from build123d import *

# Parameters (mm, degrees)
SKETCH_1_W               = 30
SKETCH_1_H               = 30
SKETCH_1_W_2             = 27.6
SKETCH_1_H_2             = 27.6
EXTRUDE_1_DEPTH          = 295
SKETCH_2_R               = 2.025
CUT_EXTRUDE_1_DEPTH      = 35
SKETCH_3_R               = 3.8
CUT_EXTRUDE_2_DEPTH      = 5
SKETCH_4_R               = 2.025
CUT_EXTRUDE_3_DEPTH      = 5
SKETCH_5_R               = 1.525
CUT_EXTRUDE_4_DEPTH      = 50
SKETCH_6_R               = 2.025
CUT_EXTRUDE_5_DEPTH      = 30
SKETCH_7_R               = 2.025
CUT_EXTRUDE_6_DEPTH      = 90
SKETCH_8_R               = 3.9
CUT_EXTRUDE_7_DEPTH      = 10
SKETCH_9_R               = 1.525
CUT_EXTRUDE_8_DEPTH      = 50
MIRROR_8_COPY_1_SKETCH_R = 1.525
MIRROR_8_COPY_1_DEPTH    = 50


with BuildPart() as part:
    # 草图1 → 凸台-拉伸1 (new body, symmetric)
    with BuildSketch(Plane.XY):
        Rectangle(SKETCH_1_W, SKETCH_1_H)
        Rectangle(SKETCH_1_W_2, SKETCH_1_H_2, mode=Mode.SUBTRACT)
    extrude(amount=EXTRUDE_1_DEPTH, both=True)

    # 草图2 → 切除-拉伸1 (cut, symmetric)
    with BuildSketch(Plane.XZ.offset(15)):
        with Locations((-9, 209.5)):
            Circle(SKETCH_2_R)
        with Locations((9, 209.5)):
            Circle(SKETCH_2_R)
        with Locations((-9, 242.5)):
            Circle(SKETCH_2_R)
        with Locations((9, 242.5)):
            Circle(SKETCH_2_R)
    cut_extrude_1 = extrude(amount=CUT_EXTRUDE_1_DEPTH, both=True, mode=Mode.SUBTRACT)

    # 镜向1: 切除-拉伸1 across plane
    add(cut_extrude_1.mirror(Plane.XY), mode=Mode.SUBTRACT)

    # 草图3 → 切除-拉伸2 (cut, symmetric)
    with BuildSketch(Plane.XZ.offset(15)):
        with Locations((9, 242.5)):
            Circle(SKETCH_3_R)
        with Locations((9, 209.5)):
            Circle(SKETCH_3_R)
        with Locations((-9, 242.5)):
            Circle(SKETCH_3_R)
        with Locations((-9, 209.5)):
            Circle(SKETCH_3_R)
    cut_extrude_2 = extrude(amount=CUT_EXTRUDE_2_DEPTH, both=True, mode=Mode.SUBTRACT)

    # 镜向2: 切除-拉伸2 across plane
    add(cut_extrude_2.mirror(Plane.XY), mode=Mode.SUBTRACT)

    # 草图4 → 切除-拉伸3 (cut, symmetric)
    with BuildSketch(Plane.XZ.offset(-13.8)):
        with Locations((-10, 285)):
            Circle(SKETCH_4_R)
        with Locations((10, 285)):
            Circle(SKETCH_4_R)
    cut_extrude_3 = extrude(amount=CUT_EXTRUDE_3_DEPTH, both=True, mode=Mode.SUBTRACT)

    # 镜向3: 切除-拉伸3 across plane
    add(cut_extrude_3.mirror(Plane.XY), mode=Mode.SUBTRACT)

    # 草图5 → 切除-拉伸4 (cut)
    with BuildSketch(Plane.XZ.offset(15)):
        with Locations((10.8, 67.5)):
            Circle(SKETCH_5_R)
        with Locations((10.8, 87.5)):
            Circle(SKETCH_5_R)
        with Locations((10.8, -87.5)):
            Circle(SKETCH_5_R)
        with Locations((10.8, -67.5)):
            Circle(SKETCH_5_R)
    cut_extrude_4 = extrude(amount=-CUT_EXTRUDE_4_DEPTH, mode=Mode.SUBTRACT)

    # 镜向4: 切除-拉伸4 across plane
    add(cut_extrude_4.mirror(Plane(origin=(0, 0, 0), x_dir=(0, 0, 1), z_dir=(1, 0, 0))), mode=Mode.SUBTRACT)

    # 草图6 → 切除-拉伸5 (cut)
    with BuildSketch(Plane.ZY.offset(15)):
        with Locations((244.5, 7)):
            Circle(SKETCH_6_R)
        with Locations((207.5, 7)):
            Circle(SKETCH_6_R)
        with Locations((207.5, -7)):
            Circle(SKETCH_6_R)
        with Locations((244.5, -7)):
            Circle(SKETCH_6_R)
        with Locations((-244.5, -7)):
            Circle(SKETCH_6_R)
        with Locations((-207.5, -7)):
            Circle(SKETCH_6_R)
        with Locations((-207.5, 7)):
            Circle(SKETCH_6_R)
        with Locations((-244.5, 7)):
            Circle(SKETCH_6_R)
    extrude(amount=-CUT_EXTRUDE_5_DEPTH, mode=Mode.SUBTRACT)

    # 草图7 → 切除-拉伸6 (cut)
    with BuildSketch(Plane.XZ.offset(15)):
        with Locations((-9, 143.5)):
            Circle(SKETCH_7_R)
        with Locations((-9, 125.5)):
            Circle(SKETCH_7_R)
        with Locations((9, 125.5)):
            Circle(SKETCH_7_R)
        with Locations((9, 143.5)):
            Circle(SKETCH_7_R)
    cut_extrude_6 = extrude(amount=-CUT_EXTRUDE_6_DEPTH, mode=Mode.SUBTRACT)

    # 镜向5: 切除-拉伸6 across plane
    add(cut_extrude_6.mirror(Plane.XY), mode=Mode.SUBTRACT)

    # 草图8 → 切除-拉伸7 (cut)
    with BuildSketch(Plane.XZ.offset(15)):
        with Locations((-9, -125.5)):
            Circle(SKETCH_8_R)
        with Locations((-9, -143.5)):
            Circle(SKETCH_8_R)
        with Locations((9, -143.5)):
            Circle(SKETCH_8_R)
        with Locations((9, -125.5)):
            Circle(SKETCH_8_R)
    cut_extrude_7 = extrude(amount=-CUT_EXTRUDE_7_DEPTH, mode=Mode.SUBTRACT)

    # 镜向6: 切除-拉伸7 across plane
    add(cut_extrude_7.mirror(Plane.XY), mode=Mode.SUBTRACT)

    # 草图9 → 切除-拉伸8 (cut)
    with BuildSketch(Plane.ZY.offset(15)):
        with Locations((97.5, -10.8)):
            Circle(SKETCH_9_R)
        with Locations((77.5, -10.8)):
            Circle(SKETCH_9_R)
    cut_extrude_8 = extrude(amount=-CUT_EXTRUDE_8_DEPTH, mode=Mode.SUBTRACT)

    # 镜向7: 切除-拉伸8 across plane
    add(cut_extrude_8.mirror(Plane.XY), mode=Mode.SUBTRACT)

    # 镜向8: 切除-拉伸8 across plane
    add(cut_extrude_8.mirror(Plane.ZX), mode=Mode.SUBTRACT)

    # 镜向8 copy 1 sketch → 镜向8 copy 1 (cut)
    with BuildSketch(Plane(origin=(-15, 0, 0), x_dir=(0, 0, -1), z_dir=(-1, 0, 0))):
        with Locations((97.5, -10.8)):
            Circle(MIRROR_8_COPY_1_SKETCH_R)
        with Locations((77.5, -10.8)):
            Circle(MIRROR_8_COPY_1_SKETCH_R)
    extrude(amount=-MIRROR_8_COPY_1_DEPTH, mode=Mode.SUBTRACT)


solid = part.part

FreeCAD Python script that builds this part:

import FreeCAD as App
import Part
import Sketcher

V = App.Vector
Q = App.Units.Quantity


def add_polygon(sketch, points):
    """Adds a closed chain of lines whose ends are joined by coincident constraints."""
    first, n = sketch.GeometryCount, len(points)
    for a, b in zip(points, points[1:] + points[:1]):
        sketch.addGeometry(Part.LineSegment(App.Vector(*a, 0), App.Vector(*b, 0)), False)
    for i in range(n):
        sketch.addConstraint(Sketcher.Constraint("Coincident", first + i, 2, first + (i + 1) % n, 1))

doc = App.newDocument("Part")
params = doc.addObject("Spreadsheet::Sheet", "Params")
for row, (alias, value) in enumerate([
    ("sketch1_width", "30 mm"),
    ("sketch1_width2", "27.6 mm"),
    ("pad1_length", "590 mm"),
    ("sketch2_diameter", "4.05 mm"),
    ("pocket1_length", "70 mm"),
    ("sketch3_diameter", "7.6 mm"),
    ("pocket2_length", "10 mm"),
    ("sketch4_diameter", "4.05 mm"),
    ("pocket3_length", "10 mm"),
    ("sketch5_diameter", "3.05 mm"),
    ("pocket4_length", "50 mm"),
    ("sketch6_diameter", "4.05 mm"),
    ("pocket5_length", "30 mm"),
    ("sketch7_diameter", "4.05 mm"),
    ("pocket6_length", "90 mm"),
    ("sketch8_diameter", "7.8 mm"),
    ("pocket7_length", "10 mm"),
    ("sketch9_diameter", "3.05 mm"),
    ("pocket8_length", "50 mm"),
    ("sketch10_diameter", "3.05 mm"),
    ("pocket9_length", "50 mm"),
], start=1):
    params.set(f"A{row}", alias)
    params.set(f"B{row}", "=" + value)
    params.setAlias(f"B{row}", alias)

body = doc.addObject("PartDesign::Body", "Body")

# Sketch on XY plane
sketch1 = body.newObject("Sketcher::SketchObject", "Sketch")
sketch1.AttachmentSupport = (doc.getObject("XY_Plane"), [""])
sketch1.MapMode = "FlatFace"
add_polygon(sketch1, [(-15, 15), (-15, -15), (15, -15), (15, 15)])  # lines 0-3
add_polygon(sketch1, [(13.8, -13.8), (-13.8, -13.8), (-13.8, 13.8), (13.8, 13.8)])  # lines 4-7
sketch1.addConstraint(Sketcher.Constraint("Vertical", 0))
sketch1.addConstraint(Sketcher.Constraint("Horizontal", 1))
sketch1.addConstraint(Sketcher.Constraint("Vertical", 2))
sketch1.addConstraint(Sketcher.Constraint("Horizontal", 3))
sketch1.addConstraint(Sketcher.Constraint("Horizontal", 4))
sketch1.addConstraint(Sketcher.Constraint("Vertical", 5))
sketch1.addConstraint(Sketcher.Constraint("Horizontal", 6))
sketch1.addConstraint(Sketcher.Constraint("Vertical", 7))
sketch1.addConstraint(Sketcher.Constraint("Symmetric", 0, 2, 2, 2, -1, 1))
sketch1.addConstraint(Sketcher.Constraint("Symmetric", 4, 2, 6, 2, -1, 1))
sketch1.addConstraint(Sketcher.Constraint("Equal", 3, 0))
sketch1.addConstraint(Sketcher.Constraint("Equal", 6, 5))
sketch1.addConstraint(Sketcher.Constraint("DistanceX", 1, 1, 1, 2, Q("30 mm")))
sketch1.addConstraint(Sketcher.Constraint("DistanceX", 4, 2, 4, 1, Q("27.6 mm")))
sketch1.setExpression("Constraints[20]", "Params.sketch1_width")
sketch1.setExpression("Constraints[21]", "Params.sketch1_width2")
pad1 = body.newObject("PartDesign::Pad", "Pad")
pad1.Profile = sketch1
pad1.setExpression("Length", "Params.pad1_length")
pad1.Midplane = True

# Sketch on XZ plane
sketch2 = body.newObject("Sketcher::SketchObject", "Sketch001")
sketch2.AttachmentSupport = (doc.getObject("XZ_Plane"), [""])
sketch2.MapMode = "FlatFace"
sketch2.AttachmentOffset = App.Placement(V(0, 0, 15), App.Rotation())
sketch2.addGeometry(Part.Circle(V(-9, 209.5, 0), V(0, 0, 1), 2.025), False)
sketch2.addGeometry(Part.Circle(V(9, 209.5, 0), V(0, 0, 1), 2.025), False)
sketch2.addGeometry(Part.Circle(V(-9, 242.5, 0), V(0, 0, 1), 2.025), False)
sketch2.addGeometry(Part.Circle(V(9, 242.5, 0), V(0, 0, 1), 2.025), False)
sketch2.addConstraint(Sketcher.Constraint("Equal", 0, 1))
sketch2.addConstraint(Sketcher.Constraint("Equal", 1, 2))
sketch2.addConstraint(Sketcher.Constraint("Equal", 2, 3))
sketch2.addConstraint(Sketcher.Constraint("Symmetric", 0, 3, 1, 3, -2))
sketch2.addConstraint(Sketcher.Constraint("Symmetric", 2, 3, 3, 3, -2))
sketch2.addConstraint(Sketcher.Constraint("Vertical", 0, 3, 2, 3))
sketch2.addConstraint(Sketcher.Constraint("Diameter", 0, Q("4.05 mm")))
sketch2.addConstraint(Sketcher.Constraint("DistanceX", 0, 3, -1, 1, Q("9 mm")))
sketch2.addConstraint(Sketcher.Constraint("DistanceY", 0, 3, 2, 3, Q("33 mm")))
sketch2.addConstraint(Sketcher.Constraint("DistanceY", -1, 1, 0, 3, Q("209.5 mm")))
sketch2.setExpression("Constraints[6]", "Params.sketch2_diameter")
pocket1 = body.newObject("PartDesign::Pocket", "Pocket")
pocket1.Profile = sketch2
pocket1.setExpression("Length", "Params.pocket1_length")
pocket1.Midplane = True
doc.recompute()

mirrored = body.newObject("PartDesign::Mirrored", "Mirrored")
mirrored.Originals = [pocket1]
mirrored.MirrorPlane = (doc.getObject("XY_Plane"), [""])
body.Tip = mirrored

# Sketch on XZ plane
sketch3 = body.newObject("Sketcher::SketchObject", "Sketch002")
sketch3.AttachmentSupport = (doc.getObject("XZ_Plane"), [""])
sketch3.MapMode = "FlatFace"
sketch3.AttachmentOffset = App.Placement(V(0, 0, 15), App.Rotation())
sketch3.addGeometry(Part.Circle(V(9, 242.5, 0), V(0, 0, 1), 3.8), False)
sketch3.addGeometry(Part.Circle(V(9, 209.5, 0), V(0, 0, 1), 3.8), False)
sketch3.addGeometry(Part.Circle(V(-9, 242.5, 0), V(0, 0, 1), 3.8), False)
sketch3.addGeometry(Part.Circle(V(-9, 209.5, 0), V(0, 0, 1), 3.8), False)
sketch3.addConstraint(Sketcher.Constraint("Equal", 0, 1))
sketch3.addConstraint(Sketcher.Constraint("Equal", 1, 2))
sketch3.addConstraint(Sketcher.Constraint("Equal", 2, 3))
sketch3.addConstraint(Sketcher.Constraint("Symmetric", 0, 3, 2, 3, -2))
sketch3.addConstraint(Sketcher.Constraint("Symmetric", 1, 3, 3, 3, -2))
sketch3.addConstraint(Sketcher.Constraint("Vertical", 0, 3, 1, 3))
sketch3.addConstraint(Sketcher.Constraint("Diameter", 0, Q("7.6 mm")))
sketch3.addConstraint(Sketcher.Constraint("DistanceX", -1, 1, 0, 3, Q("9 mm")))
sketch3.addConstraint(Sketcher.Constraint("DistanceY", 1, 3, 0, 3, Q("33 mm")))
sketch3.addConstraint(Sketcher.Constraint("DistanceY", -1, 1, 0, 3, Q("242.5 mm")))
sketch3.setExpression("Constraints[6]", "Params.sketch3_diameter")
pocket2 = body.newObject("PartDesign::Pocket", "Pocket001")
pocket2.Profile = sketch3
pocket2.setExpression("Length", "Params.pocket2_length")
pocket2.Midplane = True
doc.recompute()

mirrored2 = body.newObject("PartDesign::Mirrored", "Mirrored001")
mirrored2.Originals = [pocket2]
mirrored2.MirrorPlane = (doc.getObject("XY_Plane"), [""])
body.Tip = mirrored2

# Sketch on XZ plane
sketch4 = body.newObject("Sketcher::SketchObject", "Sketch003")
sketch4.AttachmentSupport = (doc.getObject("XZ_Plane"), [""])
sketch4.MapMode = "FlatFace"
sketch4.AttachmentOffset = App.Placement(V(0, 0, -13.8), App.Rotation())
sketch4.addGeometry(Part.Circle(V(-10, 285, 0), V(0, 0, 1), 2.025), False)
sketch4.addGeometry(Part.Circle(V(10, 285, 0), V(0, 0, 1), 2.025), False)
sketch4.addConstraint(Sketcher.Constraint("Equal", 0, 1))
sketch4.addConstraint(Sketcher.Constraint("Symmetric", 0, 3, 1, 3, -2))
sketch4.addConstraint(Sketcher.Constraint("Diameter", 0, Q("4.05 mm")))
sketch4.addConstraint(Sketcher.Constraint("DistanceX", 0, 3, -1, 1, Q("10 mm")))
sketch4.addConstraint(Sketcher.Constraint("DistanceY", -1, 1, 0, 3, Q("285 mm")))
sketch4.setExpression("Constraints[2]", "Params.sketch4_diameter")
pocket3 = body.newObject("PartDesign::Pocket", "Pocket002")
pocket3.Profile = sketch4
pocket3.setExpression("Length", "Params.pocket3_length")
pocket3.Midplane = True
doc.recompute()

mirrored3 = body.newObject("PartDesign::Mirrored", "Mirrored002")
mirrored3.Originals = [pocket3]
mirrored3.MirrorPlane = (doc.getObject("XY_Plane"), [""])
body.Tip = mirrored3

# Sketch on XZ plane
sketch5 = body.newObject("Sketcher::SketchObject", "Sketch004")
sketch5.AttachmentSupport = (doc.getObject("XZ_Plane"), [""])
sketch5.MapMode = "FlatFace"
sketch5.AttachmentOffset = App.Placement(V(0, 0, 15), App.Rotation())
sketch5.addGeometry(Part.Circle(V(10.8, 67.5, 0), V(0, 0, 1), 1.525), False)
sketch5.addGeometry(Part.Circle(V(10.8, 87.5, 0), V(0, 0, 1), 1.525), False)
sketch5.addGeometry(Part.Circle(V(10.8, -87.5, 0), V(0, 0, 1), 1.525), False)
sketch5.addGeometry(Part.Circle(V(10.8, -67.5, 0), V(0, 0, 1), 1.525), False)
sketch5.addConstraint(Sketcher.Constraint("Equal", 0, 1))
sketch5.addConstraint(Sketcher.Constraint("Equal", 1, 2))
sketch5.addConstraint(Sketcher.Constraint("Equal", 2, 3))
sketch5.addConstraint(Sketcher.Constraint("Symmetric", 1, 3, 2, 3, -1))
sketch5.addConstraint(Sketcher.Constraint("Symmetric", 0, 3, 3, 3, -1))
sketch5.addConstraint(Sketcher.Constraint("Vertical", 0, 3, 1, 3))
sketch5.addConstraint(Sketcher.Constraint("Diameter", 0, Q("3.05 mm")))
sketch5.addConstraint(Sketcher.Constraint("DistanceY", 0, 3, 1, 3, Q("20 mm")))
sketch5.addConstraint(Sketcher.Constraint("DistanceY", 2, 3, 0, 3, Q("155 mm")))
sketch5.addConstraint(Sketcher.Constraint("DistanceX", -1, 1, 0, 3, Q("10.8 mm")))
sketch5.setExpression("Constraints[6]", "Params.sketch5_diameter")
pocket4 = body.newObject("PartDesign::Pocket", "Pocket003")
pocket4.Profile = sketch5
pocket4.setExpression("Length", "Params.pocket4_length")
doc.recompute()

mirrored4 = body.newObject("PartDesign::Mirrored", "Mirrored003")
mirrored4.Originals = [pocket4]
mirrored4.MirrorPlane = (doc.getObject("YZ_Plane"), [""])
body.Tip = mirrored4

# Sketch on YZ plane
sketch6 = body.newObject("Sketcher::SketchObject", "Sketch005")
sketch6.AttachmentSupport = (doc.getObject("YZ_Plane"), [""])
sketch6.MapMode = "FlatFace"
sketch6.AttachmentOffset = App.Placement(V(0, 0, -15), App.Rotation())
sketch6.addGeometry(Part.Circle(V(7, 244.5, 0), V(0, 0, 1), 2.025), False)
sketch6.addGeometry(Part.Circle(V(7, 207.5, 0), V(0, 0, 1), 2.025), False)
sketch6.addGeometry(Part.Circle(V(-7, 207.5, 0), V(0, 0, 1), 2.025), False)
sketch6.addGeometry(Part.Circle(V(-7, 244.5, 0), V(0, 0, 1), 2.025), False)
sketch6.addGeometry(Part.Circle(V(-7, -244.5, 0), V(0, 0, 1), 2.025), False)
sketch6.addGeometry(Part.Circle(V(-7, -207.5, 0), V(0, 0, 1), 2.025), False)
sketch6.addGeometry(Part.Circle(V(7, -207.5, 0), V(0, 0, 1), 2.025), False)
sketch6.addGeometry(Part.Circle(V(7, -244.5, 0), V(0, 0, 1), 2.025), False)
sketch6.addConstraint(Sketcher.Constraint("Equal", 0, 1))
sketch6.addConstraint(Sketcher.Constraint("Equal", 1, 2))
sketch6.addConstraint(Sketcher.Constraint("Equal", 2, 3))
sketch6.addConstraint(Sketcher.Constraint("Equal", 3, 4))
sketch6.addConstraint(Sketcher.Constraint("Equal", 4, 5))
sketch6.addConstraint(Sketcher.Constraint("Equal", 5, 6))
sketch6.addConstraint(Sketcher.Constraint("Equal", 6, 7))
sketch6.addConstraint(Sketcher.Constraint("Symmetric", 0, 3, 4, 3, -1, 1))
sketch6.addConstraint(Sketcher.Constraint("Symmetric", 1, 3, 5, 3, -1, 1))
sketch6.addConstraint(Sketcher.Constraint("Symmetric", 2, 3, 6, 3, -1, 1))
sketch6.addConstraint(Sketcher.Constraint("Symmetric", 3, 3, 7, 3, -1, 1))
sketch6.addConstraint(Sketcher.Constraint("Symmetric", 1, 3, 2, 3, -2))
sketch6.addConstraint(Sketcher.Constraint("Symmetric", 0, 3, 3, 3, -2))
sketch6.addConstraint(Sketcher.Constraint("Vertical", 0, 3, 1, 3))
sketch6.addConstraint(Sketcher.Constraint("Diameter", 0, Q("4.05 mm")))
sketch6.addConstraint(Sketcher.Constraint("DistanceX", -1, 1, 0, 3, Q("7 mm")))
sketch6.addConstraint(Sketcher.Constraint("DistanceY", 1, 3, 0, 3, Q("37 mm")))
sketch6.addConstraint(Sketcher.Constraint("DistanceY", 4, 3, 2, 3, Q("452 mm")))
sketch6.setExpression("Constraints[14]", "Params.sketch6_diameter")
pocket5 = body.newObject("PartDesign::Pocket", "Pocket004")
pocket5.Profile = sketch6
pocket5.setExpression("Length", "Params.pocket5_length")
pocket5.Reversed = True

# Sketch on XZ plane
sketch7 = body.newObject("Sketcher::SketchObject", "Sketch006")
sketch7.AttachmentSupport = (doc.getObject("XZ_Plane"), [""])
sketch7.MapMode = "FlatFace"
sketch7.AttachmentOffset = App.Placement(V(0, 0, 15), App.Rotation())
sketch7.addGeometry(Part.Circle(V(-9, 143.5, 0), V(0, 0, 1), 2.025), False)
sketch7.addGeometry(Part.Circle(V(-9, 125.5, 0), V(0, 0, 1), 2.025), False)
sketch7.addGeometry(Part.Circle(V(9, 125.5, 0), V(0, 0, 1), 2.025), False)
sketch7.addGeometry(Part.Circle(V(9, 143.5, 0), V(0, 0, 1), 2.025), False)
sketch7.addConstraint(Sketcher.Constraint("Equal", 0, 1))
sketch7.addConstraint(Sketcher.Constraint("Equal", 1, 2))
sketch7.addConstraint(Sketcher.Constraint("Equal", 2, 3))
sketch7.addConstraint(Sketcher.Constraint("Symmetric", 1, 3, 2, 3, -2))
sketch7.addConstraint(Sketcher.Constraint("Symmetric", 0, 3, 3, 3, -2))
sketch7.addConstraint(Sketcher.Constraint("Vertical", 0, 3, 1, 3))
sketch7.addConstraint(Sketcher.Constraint("Diameter", 0, Q("4.05 mm")))
sketch7.addConstraint(Sketcher.Constraint("DistanceX", 0, 3, -1, 1, Q("9 mm")))
sketch7.addConstraint(Sketcher.Constraint("DistanceY", 1, 3, 0, 3, Q("18 mm")))
sketch7.addConstraint(Sketcher.Constraint("DistanceY", -1, 1, 0, 3, Q("143.5 mm")))
sketch7.setExpression("Constraints[6]", "Params.sketch7_diameter")
pocket6 = body.newObject("PartDesign::Pocket", "Pocket005")
pocket6.Profile = sketch7
pocket6.setExpression("Length", "Params.pocket6_length")
doc.recompute()

mirrored5 = body.newObject("PartDesign::Mirrored", "Mirrored004")
mirrored5.Originals = [pocket6]
mirrored5.MirrorPlane = (doc.getObject("XY_Plane"), [""])
body.Tip = mirrored5

# Sketch on XZ plane
sketch8 = body.newObject("Sketcher::SketchObject", "Sketch007")
sketch8.AttachmentSupport = (doc.getObject("XZ_Plane"), [""])
sketch8.MapMode = "FlatFace"
sketch8.AttachmentOffset = App.Placement(V(0, 0, 15), App.Rotation())
sketch8.addGeometry(Part.Circle(V(-9, -125.5, 0), V(0, 0, 1), 3.9), False)
sketch8.addGeometry(Part.Circle(V(-9, -143.5, 0), V(0, 0, 1), 3.9), False)
sketch8.addGeometry(Part.Circle(V(9, -143.5, 0), V(0, 0, 1), 3.9), False)
sketch8.addGeometry(Part.Circle(V(9, -125.5, 0), V(0, 0, 1), 3.9), False)
sketch8.addConstraint(Sketcher.Constraint("Equal", 0, 1))
sketch8.addConstraint(Sketcher.Constraint("Equal", 1, 2))
sketch8.addConstraint(Sketcher.Constraint("Equal", 2, 3))
sketch8.addConstraint(Sketcher.Constraint("Symmetric", 1, 3, 2, 3, -2))
sketch8.addConstraint(Sketcher.Constraint("Symmetric", 0, 3, 3, 3, -2))
sketch8.addConstraint(Sketcher.Constraint("Vertical", 0, 3, 1, 3))
sketch8.addConstraint(Sketcher.Constraint("Diameter", 0, Q("7.8 mm")))
sketch8.addConstraint(Sketcher.Constraint("DistanceX", 0, 3, -1, 1, Q("9 mm")))
sketch8.addConstraint(Sketcher.Constraint("DistanceY", 1, 3, 0, 3, Q("18 mm")))
sketch8.addConstraint(Sketcher.Constraint("DistanceY", 0, 3, -1, 1, Q("125.5 mm")))
sketch8.setExpression("Constraints[6]", "Params.sketch8_diameter")
pocket7 = body.newObject("PartDesign::Pocket", "Pocket006")
pocket7.Profile = sketch8
pocket7.setExpression("Length", "Params.pocket7_length")
doc.recompute()

mirrored6 = body.newObject("PartDesign::Mirrored", "Mirrored005")
mirrored6.Originals = [pocket7]
mirrored6.MirrorPlane = (doc.getObject("XY_Plane"), [""])
body.Tip = mirrored6

# Sketch on YZ plane
sketch9 = body.newObject("Sketcher::SketchObject", "Sketch008")
sketch9.AttachmentSupport = (doc.getObject("YZ_Plane"), [""])
sketch9.MapMode = "FlatFace"
sketch9.AttachmentOffset = App.Placement(V(0, 0, -15), App.Rotation())
sketch9.addGeometry(Part.Circle(V(-10.8, 97.5, 0), V(0, 0, 1), 1.525), False)
sketch9.addGeometry(Part.Circle(V(-10.8, 77.5, 0), V(0, 0, 1), 1.525), False)
sketch9.addConstraint(Sketcher.Constraint("Equal", 0, 1))
sketch9.addConstraint(Sketcher.Constraint("Vertical", 0, 3, 1, 3))
sketch9.addConstraint(Sketcher.Constraint("Diameter", 0, Q("3.05 mm")))
sketch9.addConstraint(Sketcher.Constraint("DistanceY", 1, 3, 0, 3, Q("20 mm")))
sketch9.addConstraint(Sketcher.Constraint("DistanceX", 0, 3, -1, 1, Q("10.8 mm")))
sketch9.addConstraint(Sketcher.Constraint("DistanceY", -1, 1, 0, 3, Q("97.5 mm")))
sketch9.setExpression("Constraints[2]", "Params.sketch9_diameter")
pocket8 = body.newObject("PartDesign::Pocket", "Pocket007")
pocket8.Profile = sketch9
pocket8.setExpression("Length", "Params.pocket8_length")
pocket8.Reversed = True
doc.recompute()

mirrored7 = body.newObject("PartDesign::Mirrored", "Mirrored006")
mirrored7.Originals = [pocket8]
mirrored7.MirrorPlane = (doc.getObject("XY_Plane"), [""])
body.Tip = mirrored7
doc.recompute()

mirrored8 = body.newObject("PartDesign::Mirrored", "Mirrored007")
mirrored8.Originals = [pocket8]
mirrored8.MirrorPlane = (doc.getObject("XZ_Plane"), [""])
body.Tip = mirrored8

# Sketch on YZ plane
sketch10 = body.newObject("Sketcher::SketchObject", "Sketch009")
sketch10.AttachmentSupport = (doc.getObject("YZ_Plane"), [""])
sketch10.MapMode = "FlatFace"
sketch10.AttachmentOffset = App.Placement(V(0, 0, -15), App.Rotation())
sketch10.addGeometry(Part.Circle(V(10.8, -97.5, 0), V(0, 0, 1), 1.525), False)
sketch10.addGeometry(Part.Circle(V(10.8, -77.5, 0), V(0, 0, 1), 1.525), False)
sketch10.addConstraint(Sketcher.Constraint("Equal", 0, 1))
sketch10.addConstraint(Sketcher.Constraint("Vertical", 0, 3, 1, 3))
sketch10.addConstraint(Sketcher.Constraint("Diameter", 0, Q("3.05 mm")))
sketch10.addConstraint(Sketcher.Constraint("DistanceY", 0, 3, 1, 3, Q("20 mm")))
sketch10.addConstraint(Sketcher.Constraint("DistanceX", -1, 1, 0, 3, Q("10.8 mm")))
sketch10.addConstraint(Sketcher.Constraint("DistanceY", 0, 3, -1, 1, Q("97.5 mm")))
sketch10.setExpression("Constraints[2]", "Params.sketch10_diameter")
pocket9 = body.newObject("PartDesign::Pocket", "Pocket008")
pocket9.Profile = sketch10
pocket9.setExpression("Length", "Params.pocket9_length")
pocket9.Reversed = True

doc.recompute()
